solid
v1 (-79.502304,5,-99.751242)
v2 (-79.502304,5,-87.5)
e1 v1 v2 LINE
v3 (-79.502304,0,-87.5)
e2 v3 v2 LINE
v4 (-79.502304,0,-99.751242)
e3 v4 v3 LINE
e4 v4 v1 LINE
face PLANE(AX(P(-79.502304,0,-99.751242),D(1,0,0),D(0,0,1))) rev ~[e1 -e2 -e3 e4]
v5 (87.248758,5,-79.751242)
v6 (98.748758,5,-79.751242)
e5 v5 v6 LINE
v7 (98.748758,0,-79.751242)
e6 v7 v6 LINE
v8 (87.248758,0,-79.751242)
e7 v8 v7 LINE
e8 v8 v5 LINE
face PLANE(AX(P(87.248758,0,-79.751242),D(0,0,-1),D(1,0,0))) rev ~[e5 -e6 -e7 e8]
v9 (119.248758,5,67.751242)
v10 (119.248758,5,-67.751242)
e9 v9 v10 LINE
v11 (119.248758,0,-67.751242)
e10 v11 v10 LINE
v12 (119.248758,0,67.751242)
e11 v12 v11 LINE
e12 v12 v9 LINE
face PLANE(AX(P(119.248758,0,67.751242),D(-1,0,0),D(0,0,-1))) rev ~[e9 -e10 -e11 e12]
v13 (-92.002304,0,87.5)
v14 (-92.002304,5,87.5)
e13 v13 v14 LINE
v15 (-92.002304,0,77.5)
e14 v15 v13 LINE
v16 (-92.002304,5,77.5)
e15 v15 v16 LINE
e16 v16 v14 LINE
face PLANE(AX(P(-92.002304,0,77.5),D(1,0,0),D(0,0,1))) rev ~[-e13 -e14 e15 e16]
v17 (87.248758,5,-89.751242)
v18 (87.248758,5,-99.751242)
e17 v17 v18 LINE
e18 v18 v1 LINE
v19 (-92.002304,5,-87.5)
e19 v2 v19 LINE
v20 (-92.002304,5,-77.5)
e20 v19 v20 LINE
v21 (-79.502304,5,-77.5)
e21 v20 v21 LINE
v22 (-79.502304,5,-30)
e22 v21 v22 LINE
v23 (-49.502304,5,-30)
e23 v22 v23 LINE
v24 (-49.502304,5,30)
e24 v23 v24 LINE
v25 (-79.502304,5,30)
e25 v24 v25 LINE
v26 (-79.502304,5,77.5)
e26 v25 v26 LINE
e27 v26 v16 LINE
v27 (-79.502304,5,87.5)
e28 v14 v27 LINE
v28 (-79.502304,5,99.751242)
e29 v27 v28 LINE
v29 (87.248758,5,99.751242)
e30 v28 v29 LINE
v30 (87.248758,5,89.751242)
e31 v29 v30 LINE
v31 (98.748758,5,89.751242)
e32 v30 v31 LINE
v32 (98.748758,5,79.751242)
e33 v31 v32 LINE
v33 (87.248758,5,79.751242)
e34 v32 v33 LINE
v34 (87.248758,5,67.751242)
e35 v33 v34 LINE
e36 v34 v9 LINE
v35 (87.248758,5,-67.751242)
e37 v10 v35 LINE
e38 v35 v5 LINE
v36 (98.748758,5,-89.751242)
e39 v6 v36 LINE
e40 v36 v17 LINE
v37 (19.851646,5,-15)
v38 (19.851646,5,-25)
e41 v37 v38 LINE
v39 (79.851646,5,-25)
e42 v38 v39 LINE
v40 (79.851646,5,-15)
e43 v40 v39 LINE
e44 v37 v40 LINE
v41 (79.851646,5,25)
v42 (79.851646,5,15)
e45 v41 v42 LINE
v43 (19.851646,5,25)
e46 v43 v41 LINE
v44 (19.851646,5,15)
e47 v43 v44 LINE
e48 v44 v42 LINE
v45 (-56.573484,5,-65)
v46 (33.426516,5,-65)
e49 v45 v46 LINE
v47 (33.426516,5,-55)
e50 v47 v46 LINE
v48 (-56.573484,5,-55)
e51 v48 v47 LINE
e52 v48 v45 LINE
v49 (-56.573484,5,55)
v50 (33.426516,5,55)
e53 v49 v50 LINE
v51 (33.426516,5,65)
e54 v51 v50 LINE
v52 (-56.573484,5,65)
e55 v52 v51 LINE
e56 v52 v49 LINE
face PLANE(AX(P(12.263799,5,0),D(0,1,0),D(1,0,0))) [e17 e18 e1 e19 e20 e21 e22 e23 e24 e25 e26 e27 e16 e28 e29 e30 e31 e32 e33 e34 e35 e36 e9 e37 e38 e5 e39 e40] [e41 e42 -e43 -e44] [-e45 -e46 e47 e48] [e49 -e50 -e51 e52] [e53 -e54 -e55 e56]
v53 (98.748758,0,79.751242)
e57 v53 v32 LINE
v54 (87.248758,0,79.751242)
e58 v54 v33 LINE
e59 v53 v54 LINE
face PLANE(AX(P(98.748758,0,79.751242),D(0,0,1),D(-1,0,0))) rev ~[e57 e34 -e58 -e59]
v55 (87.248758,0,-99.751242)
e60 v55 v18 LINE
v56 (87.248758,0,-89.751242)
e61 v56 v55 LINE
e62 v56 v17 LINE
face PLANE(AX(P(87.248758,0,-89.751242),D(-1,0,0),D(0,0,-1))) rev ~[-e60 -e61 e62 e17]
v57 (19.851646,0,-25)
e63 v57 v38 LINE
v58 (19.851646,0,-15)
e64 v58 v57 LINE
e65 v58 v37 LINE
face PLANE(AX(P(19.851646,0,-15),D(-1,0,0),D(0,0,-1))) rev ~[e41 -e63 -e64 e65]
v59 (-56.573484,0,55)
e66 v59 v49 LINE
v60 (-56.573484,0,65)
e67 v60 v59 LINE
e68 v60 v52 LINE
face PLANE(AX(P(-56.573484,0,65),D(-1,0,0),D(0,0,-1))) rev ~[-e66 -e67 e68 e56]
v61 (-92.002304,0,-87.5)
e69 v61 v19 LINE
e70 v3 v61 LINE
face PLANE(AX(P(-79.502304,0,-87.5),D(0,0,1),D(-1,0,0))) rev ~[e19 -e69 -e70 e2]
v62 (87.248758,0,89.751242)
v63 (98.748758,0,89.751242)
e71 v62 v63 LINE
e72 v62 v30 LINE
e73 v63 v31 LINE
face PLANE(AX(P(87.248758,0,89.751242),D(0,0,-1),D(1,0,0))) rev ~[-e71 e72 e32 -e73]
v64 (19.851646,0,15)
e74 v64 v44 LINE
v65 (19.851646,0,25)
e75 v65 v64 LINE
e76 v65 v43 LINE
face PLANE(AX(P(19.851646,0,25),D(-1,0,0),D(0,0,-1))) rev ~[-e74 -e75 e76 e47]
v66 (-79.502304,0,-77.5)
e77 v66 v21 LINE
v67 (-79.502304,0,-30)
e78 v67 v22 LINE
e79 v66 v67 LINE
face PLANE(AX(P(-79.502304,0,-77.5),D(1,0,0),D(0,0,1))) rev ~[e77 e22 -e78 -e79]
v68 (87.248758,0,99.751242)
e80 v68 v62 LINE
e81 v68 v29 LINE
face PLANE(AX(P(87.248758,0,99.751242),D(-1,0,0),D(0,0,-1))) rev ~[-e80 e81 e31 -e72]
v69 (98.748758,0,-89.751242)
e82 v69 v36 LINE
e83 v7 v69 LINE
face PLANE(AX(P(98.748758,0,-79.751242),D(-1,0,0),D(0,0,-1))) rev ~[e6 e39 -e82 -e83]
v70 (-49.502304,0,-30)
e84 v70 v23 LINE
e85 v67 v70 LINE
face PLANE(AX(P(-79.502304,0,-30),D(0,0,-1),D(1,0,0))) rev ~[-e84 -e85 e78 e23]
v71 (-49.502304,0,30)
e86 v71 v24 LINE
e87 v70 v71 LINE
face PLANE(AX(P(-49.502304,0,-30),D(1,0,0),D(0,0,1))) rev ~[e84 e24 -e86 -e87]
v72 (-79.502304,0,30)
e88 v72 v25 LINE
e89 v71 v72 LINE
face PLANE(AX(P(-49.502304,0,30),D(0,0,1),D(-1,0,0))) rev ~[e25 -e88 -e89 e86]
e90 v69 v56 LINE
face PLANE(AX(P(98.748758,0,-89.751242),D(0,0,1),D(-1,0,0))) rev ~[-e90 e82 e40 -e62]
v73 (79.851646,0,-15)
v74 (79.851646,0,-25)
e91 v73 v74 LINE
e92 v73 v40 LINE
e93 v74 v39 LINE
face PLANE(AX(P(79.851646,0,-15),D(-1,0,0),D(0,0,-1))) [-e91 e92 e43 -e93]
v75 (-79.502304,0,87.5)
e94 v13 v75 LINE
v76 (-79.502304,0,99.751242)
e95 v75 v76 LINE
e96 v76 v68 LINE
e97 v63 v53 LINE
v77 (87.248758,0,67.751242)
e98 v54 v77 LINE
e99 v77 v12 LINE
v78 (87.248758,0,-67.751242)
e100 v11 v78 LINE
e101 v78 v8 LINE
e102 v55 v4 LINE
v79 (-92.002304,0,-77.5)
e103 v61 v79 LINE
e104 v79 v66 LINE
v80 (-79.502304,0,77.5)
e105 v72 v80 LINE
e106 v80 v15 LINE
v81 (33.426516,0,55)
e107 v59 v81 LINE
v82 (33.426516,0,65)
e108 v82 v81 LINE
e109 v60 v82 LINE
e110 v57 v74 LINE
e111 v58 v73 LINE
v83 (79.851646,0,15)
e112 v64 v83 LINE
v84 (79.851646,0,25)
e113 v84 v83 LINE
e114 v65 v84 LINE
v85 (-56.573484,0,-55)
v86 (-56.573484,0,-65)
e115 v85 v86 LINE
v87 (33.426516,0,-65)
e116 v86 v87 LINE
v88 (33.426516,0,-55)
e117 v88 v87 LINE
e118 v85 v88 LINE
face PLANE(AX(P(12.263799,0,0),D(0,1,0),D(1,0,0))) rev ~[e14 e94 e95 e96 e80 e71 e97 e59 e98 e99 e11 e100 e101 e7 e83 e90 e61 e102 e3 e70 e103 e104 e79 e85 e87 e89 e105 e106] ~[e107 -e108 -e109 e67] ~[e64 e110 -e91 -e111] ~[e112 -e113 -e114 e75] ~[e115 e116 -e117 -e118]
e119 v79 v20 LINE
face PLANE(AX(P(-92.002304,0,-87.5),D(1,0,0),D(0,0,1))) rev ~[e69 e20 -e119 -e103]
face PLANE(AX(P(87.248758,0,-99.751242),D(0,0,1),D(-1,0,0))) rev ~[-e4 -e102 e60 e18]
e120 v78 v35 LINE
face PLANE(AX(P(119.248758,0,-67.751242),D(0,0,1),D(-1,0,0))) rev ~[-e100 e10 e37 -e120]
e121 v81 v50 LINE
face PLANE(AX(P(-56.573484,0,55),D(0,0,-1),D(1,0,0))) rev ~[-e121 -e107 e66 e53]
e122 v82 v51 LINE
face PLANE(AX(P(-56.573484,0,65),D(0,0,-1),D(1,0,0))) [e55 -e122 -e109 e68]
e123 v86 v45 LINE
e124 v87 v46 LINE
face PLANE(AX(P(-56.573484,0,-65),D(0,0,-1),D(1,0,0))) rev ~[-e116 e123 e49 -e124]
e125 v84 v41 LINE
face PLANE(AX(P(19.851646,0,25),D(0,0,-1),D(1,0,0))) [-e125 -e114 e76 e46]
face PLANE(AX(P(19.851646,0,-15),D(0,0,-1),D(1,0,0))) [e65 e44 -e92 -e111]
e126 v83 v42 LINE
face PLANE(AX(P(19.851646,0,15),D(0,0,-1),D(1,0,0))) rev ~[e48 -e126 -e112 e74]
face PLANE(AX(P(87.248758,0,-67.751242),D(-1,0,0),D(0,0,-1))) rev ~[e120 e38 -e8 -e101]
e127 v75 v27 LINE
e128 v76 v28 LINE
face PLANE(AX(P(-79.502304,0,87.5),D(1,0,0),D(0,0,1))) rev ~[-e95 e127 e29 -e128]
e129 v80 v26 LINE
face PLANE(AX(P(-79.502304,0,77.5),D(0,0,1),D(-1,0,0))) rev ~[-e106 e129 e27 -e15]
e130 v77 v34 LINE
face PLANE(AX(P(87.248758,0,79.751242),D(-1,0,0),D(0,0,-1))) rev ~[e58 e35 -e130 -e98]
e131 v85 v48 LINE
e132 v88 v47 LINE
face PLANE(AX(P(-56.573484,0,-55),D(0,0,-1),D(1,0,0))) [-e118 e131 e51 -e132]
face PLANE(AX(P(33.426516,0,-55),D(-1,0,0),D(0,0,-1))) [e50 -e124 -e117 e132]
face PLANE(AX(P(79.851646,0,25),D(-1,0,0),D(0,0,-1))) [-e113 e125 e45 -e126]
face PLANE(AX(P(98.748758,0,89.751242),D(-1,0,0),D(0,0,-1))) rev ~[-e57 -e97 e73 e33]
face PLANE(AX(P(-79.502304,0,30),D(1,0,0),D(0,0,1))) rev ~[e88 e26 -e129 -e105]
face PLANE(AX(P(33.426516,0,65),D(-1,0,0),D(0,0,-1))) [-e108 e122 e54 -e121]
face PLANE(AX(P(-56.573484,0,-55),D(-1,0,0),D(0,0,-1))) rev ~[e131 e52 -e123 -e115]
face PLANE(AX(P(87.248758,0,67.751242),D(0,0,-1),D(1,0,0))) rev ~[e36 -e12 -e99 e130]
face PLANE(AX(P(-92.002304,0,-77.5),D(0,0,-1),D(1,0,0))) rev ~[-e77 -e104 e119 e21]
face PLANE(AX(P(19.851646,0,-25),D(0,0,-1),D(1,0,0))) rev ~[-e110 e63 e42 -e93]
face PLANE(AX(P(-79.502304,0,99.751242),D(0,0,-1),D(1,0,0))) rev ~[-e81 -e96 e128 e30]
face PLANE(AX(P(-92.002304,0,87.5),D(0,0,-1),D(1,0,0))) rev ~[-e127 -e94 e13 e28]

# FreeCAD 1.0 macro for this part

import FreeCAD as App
import Part
import Sketcher

V = App.Vector
Q = App.Units.Quantity

doc = App.newDocument("Part")
params = doc.addObject("Spreadsheet::Sheet", "Params")
for row, (alias, value) in enumerate([
    ("sketch1_width", "32 mm"),
    ("sketch1_width2", "30 mm"),
    ("sketch1_width3", "90 mm"),
    ("sketch1_width4", "60 mm"),
    ("sketch1_height", "12 mm"),
    ("pad1_length", "5 mm"),
], start=1):
    params.set(f"A{row}", alias)
    params.set(f"B{row}", "=" + value)
    params.setAlias(f"B{row}", alias)

body = doc.addObject("PartDesign::Body", "Body")

sketch1 = doc.addObject("Sketcher::SketchObject", "Sketch")
body.addObject(sketch1)
sketch1.AttachmentSupport = (doc.XZ_Plane, [""])
sketch1.MapMode = "FlatFace"
sketch1.addGeometry([
    Part.LineSegment(V(119.248758, 67.751242, 0), V(119.248758, -67.751242, 0)),
    Part.LineSegment(V(119.248758, -67.751242, 0), V(87.248758, -67.751242, 0)),
    Part.LineSegment(V(87.248758, -67.751242, 0), V(87.248758, -79.751242, 0)),
    Part.LineSegment(V(87.248758, -79.751242, 0), V(98.748758, -79.751242, 0)),
    Part.LineSegment(V(98.748758, -79.751242, 0), V(98.748758, -89.751242, 0)),
    Part.LineSegment(V(98.748758, -89.751242, 0), V(87.248758, -89.751242, 0)),
    Part.LineSegment(V(87.248758, -89.751242, 0), V(87.248758, -99.751242, 0)),
    Part.LineSegment(V(87.248758, -99.751242, 0), V(-79.502304, -99.751242, 0)),
    Part.LineSegment(V(-79.502304, -99.751242, 0), V(-79.502304, -87.5, 0)),
    Part.LineSegment(V(-79.502304, -87.5, 0), V(-92.002304, -87.5, 0)),
    Part.LineSegment(V(-92.002304, -87.5, 0), V(-92.002304, -77.5, 0)),
    Part.LineSegment(V(-92.002304, -77.5, 0), V(-79.502304, -77.5, 0)),
    Part.LineSegment(V(-79.502304, -77.5, 0), V(-79.502304, -30, 0)),
    Part.LineSegment(V(-79.502304, -30, 0), V(-49.502304, -30, 0)),
    Part.LineSegment(V(-49.502304, -30, 0), V(-49.502304, 30, 0)),
    Part.LineSegment(V(-49.502304, 30, 0), V(-79.502304, 30, 0)),
    Part.LineSegment(V(-79.502304, 30, 0), V(-79.502304, 77.5, 0)),
    Part.LineSegment(V(-79.502304, 77.5, 0), V(-92.002304, 77.5, 0)),
    Part.LineSegment(V(-92.002304, 77.5, 0), V(-92.002304, 87.5, 0)),
    Part.LineSegment(V(-92.002304, 87.5, 0), V(-79.502304, 87.5, 0)),
    Part.LineSegment(V(-79.502304, 87.5, 0), V(-79.502304, 99.751242, 0)),
    Part.LineSegment(V(-79.502304, 99.751242, 0), V(87.248758, 99.751242, 0)),
    Part.LineSegment(V(87.248758, 99.751242, 0), V(87.248758, 89.751242, 0)),
    Part.LineSegment(V(87.248758, 89.751242, 0), V(98.748758, 89.751242, 0)),
    Part.LineSegment(V(98.748758, 89.751242, 0), V(98.748758, 79.751242, 0)),
    Part.LineSegment(V(98.748758, 79.751242, 0), V(87.248758, 79.751242, 0)),
    Part.LineSegment(V(87.248758, 79.751242, 0), V(87.248758, 67.751242, 0)),
    Part.LineSegment(V(87.248758, 67.751242, 0), V(119.248758, 67.751242, 0)),
    Part.LineSegment(V(33.426516, 65, 0), V(-56.573484, 65, 0)),
    Part.LineSegment(V(-56.573484, 65, 0), V(-56.573484, 55, 0)),
    Part.LineSegment(V(-56.573484, 55, 0), V(33.426516, 55, 0)),
    Part.LineSegment(V(33.426516, 55, 0), V(33.426516, 65, 0)),
    Part.LineSegment(V(79.851646, 25, 0), V(19.851646, 25, 0)),
    Part.LineSegment(V(19.851646, 25, 0), V(19.851646, 15, 0)),
    Part.LineSegment(V(19.851646, 15, 0), V(79.851646, 15, 0)),
    Part.LineSegment(V(79.851646, 15, 0), V(79.851646, 25, 0)),
    Part.LineSegment(V(33.426516, -55, 0), V(-56.573484, -55, 0)),
    Part.LineSegment(V(-56.573484, -55, 0), V(-56.573484, -65, 0)),
    Part.LineSegment(V(-56.573484, -65, 0), V(33.426516, -65, 0)),
    Part.LineSegment(V(33.426516, -65, 0), V(33.426516, -55, 0)),
    Part.LineSegment(V(79.851646, -15, 0), V(19.851646, -15, 0)),
    Part.LineSegment(V(19.851646, -15, 0), V(19.851646, -25, 0)),
    Part.LineSegment(V(19.851646, -25, 0), V(79.851646, -25, 0)),
    Part.LineSegment(V(79.851646, -25, 0), V(79.851646, -15, 0)),
], False)
sketch1.addConstraint([
    Sketcher.Constraint("Coincident", 0, 2, 1, 1),
    Sketcher.Constraint("Coincident", 1, 2, 2, 1),
    Sketcher.Constraint("Coincident", 2, 2, 3, 1),
    Sketcher.Constraint("Coincident", 3, 2, 4, 1),
    Sketcher.Constraint("Coincident", 4, 2, 5, 1),
    Sketcher.Constraint("Coincident", 5, 2, 6, 1),
    Sketcher.Constraint("Coincident", 6, 2, 7, 1),
    Sketcher.Constraint("Coincident", 7, 2, 8, 1),
    Sketcher.Constraint("Coincident", 8, 2, 9, 1),
    Sketcher.Constraint("Coincident", 9, 2, 10, 1),
    Sketcher.Constraint("Coincident", 10, 2, 11, 1),
    Sketcher.Constraint("Coincident", 11, 2, 12, 1),
    Sketcher.Constraint("Coincident", 12, 2, 13, 1),
    Sketcher.Constraint("Coincident", 13, 2, 14, 1),
    Sketcher.Constraint("Coincident", 14, 2, 15, 1),
    Sketcher.Constraint("Coincident", 15, 2, 16, 1),
    Sketcher.Constraint("Coincident", 16, 2, 17, 1),
    Sketcher.Constraint("Coincident", 17, 2, 18, 1),
    Sketcher.Constraint("Coincident", 18, 2, 19, 1),
    Sketcher.Constraint("Coincident", 19, 2, 20, 1),
    Sketcher.Constraint("Coincident", 20, 2, 21, 1),
    Sketcher.Constraint("Coincident", 21, 2, 22, 1),
    Sketcher.Constraint("Coincident", 22, 2, 23, 1),
    Sketcher.Constraint("Coincident", 23, 2, 24, 1),
    Sketcher.Constraint("Coincident", 24, 2, 25, 1),
    Sketcher.Constraint("Coincident", 25, 2, 26, 1),
    Sketcher.Constraint("Coincident", 26, 2, 27, 1),
    Sketcher.Constraint("Coincident", 27, 2, 0, 1),
    Sketcher.Constraint("Coincident", 28, 2, 29, 1),
    Sketcher.Constraint("Coincident", 29, 2, 30, 1),
    Sketcher.Constraint("Coincident", 30, 2, 31, 1),
    Sketcher.Constraint("Coincident", 31, 2, 28, 1),
    Sketcher.Constraint("Coincident", 32, 2, 33, 1),
    Sketcher.Constraint("Coincident", 33, 2, 34, 1),
    Sketcher.Constraint("Coincident", 34, 2, 35, 1),
    Sketcher.Constraint("Coincident", 35, 2, 32, 1),
    Sketcher.Constraint("Coincident", 36, 2, 37, 1),
    Sketcher.Constraint("Coincident", 37, 2, 38, 1),
    Sketcher.Constraint("Coincident", 38, 2, 39, 1),
    Sketcher.Constraint("Coincident", 39, 2, 36, 1),
    Sketcher.Constraint("Coincident", 40, 2, 41, 1),
    Sketcher.Constraint("Coincident", 41, 2, 42, 1),
    Sketcher.Constraint("Coincident", 42, 2, 43, 1),
    Sketcher.Constraint("Coincident", 43, 2, 40, 1),
    Sketcher.Constraint("Vertical", 0),
    Sketcher.Constraint("Horizontal", 1),
    Sketcher.Constraint("Vertical", 2),
    Sketcher.Constraint("Horizontal", 3),
    Sketcher.Constraint("Vertical", 4),
    Sketcher.Constraint("Horizontal", 5),
    Sketcher.Constraint("Vertical", 6),
    Sketcher.Constraint("Horizontal", 7),
    Sketcher.Constraint("Vertical", 8),
    Sketcher.Constraint("Horizontal", 9),
    Sketcher.Constraint("Vertical", 10),
    Sketcher.Constraint("Horizontal", 11),
    Sketcher.Constraint("Vertical", 12),
    Sketcher.Constraint("Horizontal", 13),
    Sketcher.Constraint("Vertical", 14),
    Sketcher.Constraint("Horizontal", 15),
    Sketcher.Constraint("Vertical", 16),
    Sketcher.Constraint("Horizontal", 17),
    Sketcher.Constraint("Vertical", 18),
    Sketcher.Constraint("Horizontal", 19),
    Sketcher.Constraint("Vertical", 20),
    Sketcher.Constraint("Horizontal", 21),
    Sketcher.Constraint("Vertical", 22),
    Sketcher.Constraint("Horizontal", 23),
    Sketcher.Constraint("Vertical", 24),
    Sketcher.Constraint("Horizontal", 25),
    Sketcher.Constraint("Vertical", 26),
    Sketcher.Constraint("Horizontal", 27),
    Sketcher.Constraint("Horizontal", 28),
    Sketcher.Constraint("Vertical", 29),
    Sketcher.Constraint("Horizontal", 30),
    Sketcher.Constraint("Vertical", 31),
    Sketcher.Constraint("Horizontal", 32),
    Sketcher.Constraint("Vertical", 33),
    Sketcher.Constraint("Horizontal", 34),
    Sketcher.Constraint("Vertical", 35),
    Sketcher.Constraint("Horizontal", 36),
    Sketcher.Constraint("Vertical", 37),
    Sketcher.Constraint("Horizontal", 38),
    Sketcher.Constraint("Vertical", 39),
    Sketcher.Constraint("Horizontal", 40),
    Sketcher.Constraint("Vertical", 41),
    Sketcher.Constraint("Horizontal", 42),
    Sketcher.Constraint("Vertical", 43),
    Sketcher.Constraint("Symmetric", 12, 2, 15, 2, -1),
    Sketcher.Constraint("Symmetric", 10, 2, 17, 2, -1),
    Sketcher.Constraint("Symmetric", 8, 2, 19, 2, -1),
    Sketcher.Constraint("Symmetric", 6, 2, 21, 2, -1),
    Sketcher.Constraint("Symmetric", 4, 2, 23, 2, -1),
    Sketcher.Constraint("Symmetric", 2, 2, 25, 2, -1),
    Sketcher.Constraint("Symmetric", 29, 2, 36, 2, -1),
    Sketcher.Constraint("Symmetric", 31, 2, 38, 2, -1),
    Sketcher.Constraint("Symmetric", 33, 2, 40, 2, -1),
    Sketcher.Constraint("Symmetric", 35, 2, 42, 2, -1),
    Sketcher.Constraint("Vertical", 2, 2, 5, 2),
    Sketcher.Constraint("Vertical", 8, 2, 11, 2),
    Sketcher.Constraint("Equal", 4, 6),
    Sketcher.Constraint("Equal", 6, 10),
    Sketcher.Constraint("Equal", 42, 14),
    Sketcher.Constraint("Equal", 2, 26),
    Sketcher.Constraint("Equal", 24, 29),
    Sketcher.Constraint("Equal", 31, 33),
    Sketcher.Constraint("DistanceX", 1, 2, 1, 1, Q("32 mm")),
    Sketcher.Constraint("DistanceX", 13, 1, 13, 2, Q("30 mm")),
    Sketcher.Constraint("DistanceX", 28, 2, 28, 1, Q("90 mm")),
    Sketcher.Constraint("DistanceX", 32, 2, 32, 1, Q("60 mm")),
    Sketcher.Constraint("DistanceY", 2, 2, 2, 1, Q("12 mm")),
    Sketcher.Constraint("DistanceY", 4, 2, 4, 1, Q("10 mm")),
    Sketcher.Constraint("DistanceX", 3, 1, 3, 2, Q("11.5 mm")),
    Sketcher.Constraint("DistanceX", 9, 2, 9, 1, Q("12.5 mm")),
    Sketcher.Constraint("DistanceY", 12, 1, 12, 2, Q("47.5 mm")),
    Sketcher.Constraint("DistanceY", -1, 1, 28, 2, Q("65 mm")),
    Sketcher.Constraint("DistanceY", -1, 1, 32, 2, Q("25 mm")),
    Sketcher.Constraint("DistanceX", 7, 2, 7, 1, Q("166.751062 mm")),
    Sketcher.Constraint("DistanceY", 0, 2, 0, 1, Q("135.502485 mm")),
    Sketcher.Constraint("DistanceX", 16, 2, 28, 2, Q("22.92882 mm")),
    Sketcher.Constraint("DistanceX", 32, 2, 30, 2, Q("13.57487 mm")),
    Sketcher.Constraint("DistanceX", -1, 1, 0, 2, Q("119.248758 mm")),
])
sketch1.setExpression("Constraints[106]", "Params.sketch1_width")
sketch1.setExpression("Constraints[107]", "Params.sketch1_width2")
sketch1.setExpression("Constraints[108]", "Params.sketch1_width3")
sketch1.setExpression("Constraints[109]", "Params.sketch1_width4")
sketch1.setExpression("Constraints[110]", "Params.sketch1_height")
pad1 = doc.addObject("PartDesign::Pad", "Pad")
body.addObject(pad1)
pad1.Profile = sketch1
pad1.setExpression("Length", "Params.pad1_length")
pad1.Reversed = True

doc.recompute()
